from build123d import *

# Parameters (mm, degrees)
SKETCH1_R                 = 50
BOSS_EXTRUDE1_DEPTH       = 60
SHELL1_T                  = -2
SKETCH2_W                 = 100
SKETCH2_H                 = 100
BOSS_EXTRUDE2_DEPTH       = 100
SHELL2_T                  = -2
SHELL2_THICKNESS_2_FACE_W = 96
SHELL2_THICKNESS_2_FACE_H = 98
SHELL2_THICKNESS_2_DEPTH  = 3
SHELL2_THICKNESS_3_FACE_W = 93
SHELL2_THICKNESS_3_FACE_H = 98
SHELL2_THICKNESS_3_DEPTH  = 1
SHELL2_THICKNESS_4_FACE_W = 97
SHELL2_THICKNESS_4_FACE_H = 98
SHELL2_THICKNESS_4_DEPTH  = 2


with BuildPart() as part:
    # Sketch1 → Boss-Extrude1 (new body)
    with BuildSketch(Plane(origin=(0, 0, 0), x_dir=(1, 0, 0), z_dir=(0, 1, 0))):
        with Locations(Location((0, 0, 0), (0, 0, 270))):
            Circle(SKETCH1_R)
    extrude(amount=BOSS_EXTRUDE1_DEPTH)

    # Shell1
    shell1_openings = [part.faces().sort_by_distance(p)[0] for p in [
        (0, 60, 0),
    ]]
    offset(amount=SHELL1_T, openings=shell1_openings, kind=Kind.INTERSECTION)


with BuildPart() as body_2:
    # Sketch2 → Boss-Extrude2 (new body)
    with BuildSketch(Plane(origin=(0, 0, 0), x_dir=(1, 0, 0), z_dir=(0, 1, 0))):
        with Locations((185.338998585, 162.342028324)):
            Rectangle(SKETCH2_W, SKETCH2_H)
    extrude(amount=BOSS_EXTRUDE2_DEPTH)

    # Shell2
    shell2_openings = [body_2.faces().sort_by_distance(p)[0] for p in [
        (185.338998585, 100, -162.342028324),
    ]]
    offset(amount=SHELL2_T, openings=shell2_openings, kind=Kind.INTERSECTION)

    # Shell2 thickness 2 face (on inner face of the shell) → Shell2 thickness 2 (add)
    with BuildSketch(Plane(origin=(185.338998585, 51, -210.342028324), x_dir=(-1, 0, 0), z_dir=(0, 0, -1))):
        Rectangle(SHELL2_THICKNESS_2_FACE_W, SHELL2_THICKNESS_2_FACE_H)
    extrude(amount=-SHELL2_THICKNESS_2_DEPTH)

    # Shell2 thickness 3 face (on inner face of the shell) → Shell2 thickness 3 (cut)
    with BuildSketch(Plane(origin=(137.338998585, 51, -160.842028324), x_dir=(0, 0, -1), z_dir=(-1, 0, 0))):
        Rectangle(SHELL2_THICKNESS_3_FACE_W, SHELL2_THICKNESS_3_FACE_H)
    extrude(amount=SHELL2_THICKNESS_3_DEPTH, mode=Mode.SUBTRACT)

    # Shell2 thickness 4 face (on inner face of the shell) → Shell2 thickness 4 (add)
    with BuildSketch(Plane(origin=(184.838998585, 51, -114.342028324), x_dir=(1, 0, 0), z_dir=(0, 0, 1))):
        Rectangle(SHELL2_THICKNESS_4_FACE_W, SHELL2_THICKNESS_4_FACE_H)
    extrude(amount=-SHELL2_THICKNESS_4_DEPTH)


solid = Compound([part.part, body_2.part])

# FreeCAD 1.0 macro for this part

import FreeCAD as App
import Part
import Sketcher
from FreeCAD import Vector
Q = App.Units.Quantity


def faces_at(feature, points):
    """Names of the faces that lie closest to the given points."""
    faces = feature.Shape.Faces
    near = lambda p: min(range(len(faces)), key=lambda i: faces[i].distToShape(Part.Vertex(*p))[0])
    return sorted({f"Face{near(p) + 1}" for p in points})

doc = App.newDocument("Part")
body = doc.addObject("PartDesign::Body", "Body")

# Sketch on XZ plane
sketch1 = body.newObject("Sketcher::SketchObject", "Sketch")
sketch1.AttachmentSupport = (doc.getObject("XZ_Plane"), [""])
sketch1.MapMode = "FlatFace"
sketch1.addGeometry(Part.Circle(Vector(0, 0, 0), Vector(0, 0, 1), 50), False)
sketch1.addConstraint(Sketcher.Constraint("Coincident", 0, 3, -1, 1))
sketch1.addConstraint(Sketcher.Constraint("Diameter", 0, Q("100 mm")))
pad1 = body.newObject("PartDesign::Pad", "Pad")
pad1.Profile = sketch1
pad1.Length = 60
pad1.Reversed = True
doc.recompute()

thickness = body.newObject("PartDesign::Thickness", "Thickness")
thickness.Base = (pad1, faces_at(pad1, [(0, 60, 0)]))
thickness.Value = 2
thickness.Reversed = True
thickness.Join = "Intersection"
body2 = doc.addObject("PartDesign::Body", "Body001")

# Sketch on XZ plane
sketch2 = body2.newObject("Sketcher::SketchObject", "Sketch001")
sketch2.AttachmentSupport = (doc.getObject("XZ_Plane001"), [""])
sketch2.MapMode = "FlatFace"
sketch2.addGeometry(Part.LineSegment(Vector(135, -212, 0), Vector(135, -112, 0)), False)
sketch2.addGeometry(Part.LineSegment(Vector(135, -112, 0), Vector(235, -112, 0)), False)
sketch2.addGeometry(Part.LineSegment(Vector(235, -112, 0), Vector(235, -212, 0)), False)
sketch2.addGeometry(Part.LineSegment(Vector(235, -212, 0), Vector(135, -212, 0)), False)
sketch2.addConstraint(Sketcher.Constraint("Coincident", 0, 2, 1, 1))
sketch2.addConstraint(Sketcher.Constraint("Coincident", 1, 2, 2, 1))
sketch2.addConstraint(Sketcher.Constraint("Coincident", 2, 2, 3, 1))
sketch2.addConstraint(Sketcher.Constraint("Coincident", 3, 2, 0, 1))
sketch2.addConstraint(Sketcher.Constraint("Vertical", 0))
sketch2.addConstraint(Sketcher.Constraint("Horizontal", 1))
sketch2.addConstraint(Sketcher.Constraint("Vertical", 2))
sketch2.addConstraint(Sketcher.Constraint("Horizontal", 3))
sketch2.addConstraint(Sketcher.Constraint("Equal", 3, 0))
sketch2.addConstraint(Sketcher.Constraint("DistanceX", 1, 1, 1, 2, Q("100 mm")))
sketch2.addConstraint(Sketcher.Constraint("DistanceX", -1, 1, 0, 2, Q("135.338999 mm")))
sketch2.addConstraint(Sketcher.Constraint("DistanceY", 0, 2, -1, 1, Q("112.342028 mm")))
pad2 = body2.newObject("PartDesign::Pad", "Pad001")
pad2.Profile = sketch2
pad2.Length = 100
pad2.Reversed = True
doc.recompute()

thickness2 = body2.newObject("PartDesign::Thickness", "Thickness001")
thickness2.Base = (pad2, faces_at(pad2, [(185.339, 100, -162.342)]))
thickness2.Value = 2
thickness2.Reversed = True
thickness2.Join = "Intersection"

# Sketch on XY plane
sketch3 = body2.newObject("Sketcher::SketchObject", "Sketch002")
sketch3.AttachmentSupport = (doc.getObject("XY_Plane001"), [""])
sketch3.MapMode = "FlatFace"
sketch3.AttachmentOffset = App.Placement(Vector(0, 0, -210.342028), App.Rotation())
sketch3.addGeometry(Part.LineSegment(Vector(233, 100, 0), Vector(233, 2, 0)), False)
sketch3.addGeometry(Part.LineSegment(Vector(233, 2, 0), Vector(137, 2, 0)), False)
sketch3.addGeometry(Part.LineSegment(Vector(137, 2, 0), Vector(137, 100, 0)), False)
sketch3.addGeometry(Part.LineSegment(Vector(137, 100, 0), Vector(233, 100, 0)), False)
sketch3.addConstraint(Sketcher.Constraint("Coincident", 0, 2, 1, 1))
sketch3.addConstraint(Sketcher.Constraint("Coincident", 1, 2, 2, 1))
sketch3.addConstraint(Sketcher.Constraint("Coincident", 2, 2, 3, 1))
sketch3.addConstraint(Sketcher.Constraint("Coincident", 3, 2, 0, 1))
sketch3.addConstraint(Sketcher.Constraint("Vertical", 0))
sketch3.addConstraint(Sketcher.Constraint("Horizontal", 1))
sketch3.addConstraint(Sketcher.Constraint("Vertical", 2))
sketch3.addConstraint(Sketcher.Constraint("Horizontal", 3))
sketch3.addConstraint(Sketcher.Constraint("DistanceX", 1, 2, 1, 1, Q("96 mm")))
sketch3.addConstraint(Sketcher.Constraint("DistanceY", 0, 2, 0, 1, Q("98 mm")))
sketch3.addConstraint(Sketcher.Constraint("DistanceY", -1, 1, 0, 2, Q("2 mm")))
sketch3.addConstraint(Sketcher.Constraint("DistanceX", -1, 1, 0, 2, Q("233.338999 mm")))
pad3 = body2.newObject("PartDesign::Pad", "Pad002")
pad3.Profile = sketch3
pad3.Length = 3

# Sketch on YZ plane
sketch4 = body2.newObject("Sketcher::SketchObject", "Sketch003")
sketch4.AttachmentSupport = (doc.getObject("YZ_Plane001"), [""])
sketch4.MapMode = "FlatFace"
sketch4.AttachmentOffset = App.Placement(Vector(0, 0, 137.338999), App.Rotation())
sketch4.addGeometry(Part.LineSegment(Vector(2, -114, 0), Vector(100, -114, 0)), False)
sketch4.addGeometry(Part.LineSegment(Vector(100, -114, 0), Vector(100, -207, 0)), False)
sketch4.addGeometry(Part.LineSegment(Vector(100, -207, 0), Vector(2, -207, 0)), False)
sketch4.addGeometry(Part.LineSegment(Vector(2, -207, 0), Vector(2, -114, 0)), False)
sketch4.addConstraint(Sketcher.Constraint("Coincident", 0, 2, 1, 1))
sketch4.addConstraint(Sketcher.Constraint("Coincident", 1, 2, 2, 1))
sketch4.addConstraint(Sketcher.Constraint("Coincident", 2, 2, 3, 1))
sketch4.addConstraint(Sketcher.Constraint("Coincident", 3, 2, 0, 1))
sketch4.addConstraint(Sketcher.Constraint("Horizontal", 0))
sketch4.addConstraint(Sketcher.Constraint("Vertical", 1))
sketch4.addConstraint(Sketcher.Constraint("Horizontal", 2))
sketch4.addConstraint(Sketcher.Constraint("Vertical", 3))
sketch4.addConstraint(Sketcher.Constraint("DistanceX", 0, 1, 0, 2, Q("98 mm")))
sketch4.addConstraint(Sketcher.Constraint("DistanceY", 1, 2, 1, 1, Q("93 mm")))
sketch4.addConstraint(Sketcher.Constraint("DistanceX", -1, 1, 0, 2, Q("100 mm")))
sketch4.addConstraint(Sketcher.Constraint("DistanceY", 0, 2, -1, 1, Q("114.342028 mm")))
pocket1 = body2.newObject("PartDesign::Pocket", "Pocket")
pocket1.Profile = sketch4
pocket1.Length = 1

# Sketch on XY plane
sketch5 = body2.newObject("Sketcher::SketchObject", "Sketch004")
sketch5.AttachmentSupport = (doc.getObject("XY_Plane001"), [""])
sketch5.MapMode = "FlatFace"
sketch5.AttachmentOffset = App.Placement(Vector(0, 0, -114.342028), App.Rotation())
sketch5.addGeometry(Part.LineSegment(Vector(136, 100, 0), Vector(136, 2, 0)), False)
sketch5.addGeometry(Part.LineSegment(Vector(136, 2, 0), Vector(233, 2, 0)), False)
sketch5.addGeometry(Part.LineSegment(Vector(233, 2, 0), Vector(233, 100, 0)), False)
sketch5.addGeometry(Part.LineSegment(Vector(233, 100, 0), Vector(136, 100, 0)), False)
sketch5.addConstraint(Sketcher.Constraint("Coincident", 0, 2, 1, 1))
sketch5.addConstraint(Sketcher.Constraint("Coincident", 1, 2, 2, 1))
sketch5.addConstraint(Sketcher.Constraint("Coincident", 2, 2, 3, 1))
sketch5.addConstraint(Sketcher.Constraint("Coincident", 3, 2, 0, 1))
sketch5.addConstraint(Sketcher.Constraint("Vertical", 0))
sketch5.addConstraint(Sketcher.Constraint("Horizontal", 1))
sketch5.addConstraint(Sketcher.Constraint("Vertical", 2))
sketch5.addConstraint(Sketcher.Constraint("Horizontal", 3))
sketch5.addConstraint(Sketcher.Constraint("DistanceX", 1, 1, 1, 2, Q("97 mm")))
sketch5.addConstraint(Sketcher.Constraint("DistanceY", 0, 2, 0, 1, Q("98 mm")))
sketch5.addConstraint(Sketcher.Constraint("DistanceY", -1, 1, 0, 2, Q("2 mm")))
sketch5.addConstraint(Sketcher.Constraint("DistanceX", -1, 1, 0, 2, Q("136.338999 mm")))
pad4 = body2.newObject("PartDesign::Pad", "Pad003")
pad4.Profile = sketch5
pad4.Length = 2
pad4.Reversed = True

doc.recompute()
